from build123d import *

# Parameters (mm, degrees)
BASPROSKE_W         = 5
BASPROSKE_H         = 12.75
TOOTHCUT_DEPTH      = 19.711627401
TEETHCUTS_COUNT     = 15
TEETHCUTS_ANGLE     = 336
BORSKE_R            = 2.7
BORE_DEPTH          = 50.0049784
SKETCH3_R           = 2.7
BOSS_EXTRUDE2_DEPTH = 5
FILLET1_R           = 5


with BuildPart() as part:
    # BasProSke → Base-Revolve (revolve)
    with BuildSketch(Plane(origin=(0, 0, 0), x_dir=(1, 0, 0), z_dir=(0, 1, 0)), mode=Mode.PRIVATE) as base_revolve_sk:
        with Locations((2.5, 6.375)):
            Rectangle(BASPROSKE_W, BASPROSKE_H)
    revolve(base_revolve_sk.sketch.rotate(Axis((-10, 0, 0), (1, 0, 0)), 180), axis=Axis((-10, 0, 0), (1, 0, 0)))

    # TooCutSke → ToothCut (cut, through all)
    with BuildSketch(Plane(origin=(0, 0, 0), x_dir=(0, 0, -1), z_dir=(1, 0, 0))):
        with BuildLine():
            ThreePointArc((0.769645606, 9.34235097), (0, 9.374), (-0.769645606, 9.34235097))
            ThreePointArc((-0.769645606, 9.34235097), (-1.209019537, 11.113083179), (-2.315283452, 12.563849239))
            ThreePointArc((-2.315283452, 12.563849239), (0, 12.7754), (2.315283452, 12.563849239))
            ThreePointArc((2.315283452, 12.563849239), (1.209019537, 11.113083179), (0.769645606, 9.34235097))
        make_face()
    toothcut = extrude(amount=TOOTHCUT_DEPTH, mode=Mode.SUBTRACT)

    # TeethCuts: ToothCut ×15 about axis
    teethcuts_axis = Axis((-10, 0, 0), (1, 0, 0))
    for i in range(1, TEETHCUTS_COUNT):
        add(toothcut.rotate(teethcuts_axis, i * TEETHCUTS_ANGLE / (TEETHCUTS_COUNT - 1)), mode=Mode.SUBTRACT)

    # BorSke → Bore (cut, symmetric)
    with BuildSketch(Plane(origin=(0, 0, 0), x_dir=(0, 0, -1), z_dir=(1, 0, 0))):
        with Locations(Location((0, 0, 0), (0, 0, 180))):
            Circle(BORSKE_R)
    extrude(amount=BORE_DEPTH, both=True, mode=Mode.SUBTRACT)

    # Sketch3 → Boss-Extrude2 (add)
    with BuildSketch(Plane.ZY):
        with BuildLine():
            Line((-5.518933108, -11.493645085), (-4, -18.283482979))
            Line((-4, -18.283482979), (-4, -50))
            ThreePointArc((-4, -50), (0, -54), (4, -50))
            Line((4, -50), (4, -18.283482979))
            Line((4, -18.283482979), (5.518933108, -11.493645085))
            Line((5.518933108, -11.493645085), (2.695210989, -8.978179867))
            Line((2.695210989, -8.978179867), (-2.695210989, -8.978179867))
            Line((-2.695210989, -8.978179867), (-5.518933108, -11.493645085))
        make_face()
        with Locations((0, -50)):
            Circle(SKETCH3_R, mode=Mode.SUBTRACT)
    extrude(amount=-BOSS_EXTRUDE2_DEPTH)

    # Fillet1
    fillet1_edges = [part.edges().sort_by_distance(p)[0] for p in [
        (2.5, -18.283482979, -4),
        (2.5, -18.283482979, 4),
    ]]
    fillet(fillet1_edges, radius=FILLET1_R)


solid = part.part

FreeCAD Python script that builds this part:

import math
import FreeCAD as App
import Part
import Sketcher

V = App.Vector
Q = App.Units.Quantity


def edges_at(feature, points):
    """Names of the edges that pass closest to the given points."""
    edges = feature.Shape.Edges
    near = lambda p: min(range(len(edges)), key=lambda i: edges[i].distToShape(Part.Vertex(*p))[0])
    return sorted({f"Edge{near(p) + 1}" for p in points})

doc = App.newDocument("Part")
body = doc.addObject("PartDesign::Body", "Body")

# Sketch on XZ plane
sketch1 = doc.addObject("Sketcher::SketchObject", "Sketch")
body.addObject(sketch1)
sketch1.AttachmentSupport = (doc.XZ_Plane, [""])
sketch1.MapMode = "FlatFace"
sketch1.addGeometry([
    Part.LineSegment(V(0, -12.75, 0), V(0, 0, 0)),
    Part.LineSegment(V(0, 0, 0), V(5, 0, 0)),
    Part.LineSegment(V(5, 0, 0), V(5, -12.75, 0)),
    Part.LineSegment(V(5, -12.75, 0), V(0, -12.75, 0)),
], False)
sketch1.addConstraint([
    Sketcher.Constraint("Coincident", 0, 2, 1, 1),
    Sketcher.Constraint("Coincident", 1, 2, 2, 1),
    Sketcher.Constraint("Coincident", 2, 2, 3, 1),
    Sketcher.Constraint("Coincident", 3, 2, 0, 1),
    Sketcher.Constraint("Vertical", 0),
    Sketcher.Constraint("Horizontal", 1),
    Sketcher.Constraint("Vertical", 2),
    Sketcher.Constraint("Horizontal", 3),
    Sketcher.Constraint("Coincident", 0, 2, -1, 1),
    Sketcher.Constraint("DistanceX", 1, 1, 1, 2, Q("5 mm")),
    Sketcher.Constraint("DistanceY", 0, 1, 0, 2, Q("12.75 mm")),
])
revolution = doc.addObject("PartDesign::Revolution", "Revolution")
body.addObject(revolution)
revolution.Profile = sketch1
revolution.ReferenceAxis = (sketch1, ["H_Axis"])
revolution.Angle = 360

# Sketch on YZ plane
sketch2 = doc.addObject("Sketcher::SketchObject", "Sketch001")
body.addObject(sketch2)
sketch2.AttachmentSupport = (doc.YZ_Plane, [""])
sketch2.MapMode = "FlatFace"
sketch2.addGeometry([
    Part.ArcOfCircle(Part.Circle(V(0, 0, 0), V(0, 0, 1), 9.374), math.radians(-4.709531), math.radians(4.709531)),
    Part.ArcOfCircle(Part.Circle(V(9.166491, -5.266208, 0), V(0, 0, 1), 4.5), math.radians(40.977379), math.radians(87.760308)),
    Part.ArcOfCircle(Part.Circle(V(0, 0, 0), V(0, 0, 1), 12.7754), math.radians(-10.441402), math.radians(10.441402)),
    Part.ArcOfCircle(Part.Circle(V(9.166491, 5.266208, 0), V(0, 0, 1), 4.5), math.radians(-87.760308), math.radians(-40.977379)),
], False)
sketch2.addConstraint([
    Sketcher.Constraint("Coincident", 0, 1, 1, 2),
    Sketcher.Constraint("Coincident", 1, 1, 2, 1),
    Sketcher.Constraint("Coincident", 2, 2, 3, 2),
    Sketcher.Constraint("Coincident", 3, 1, 0, 2),
    Sketcher.Constraint("Coincident", 0, 3, -1, 1),
    Sketcher.Constraint("Coincident", 2, 3, -1, 1),
    Sketcher.Constraint("Equal", 1, 3),
    Sketcher.Constraint("Symmetric", 1, 3, 3, 3, -1),
    Sketcher.Constraint("Radius", 1, Q("4.5 mm")),
    Sketcher.Constraint("Radius", 0, Q("9.374 mm")),
    Sketcher.Constraint("Radius", 2, Q("12.7754 mm")),
    Sketcher.Constraint("DistanceX", 0, 1, 1, 1, Q("3.221498 mm")),
    Sketcher.Constraint("DistanceX", -1, 1, 1, 3, Q("9.166491 mm")),
])
pocket1 = doc.addObject("PartDesign::Pocket", "Pocket")
body.addObject(pocket1)
pocket1.Profile = sketch2
pocket1.Type = "ThroughAll"
pocket1.Reversed = True
doc.recompute()

polarpattern = doc.addObject("PartDesign::PolarPattern", "PolarPattern")
body.addObject(polarpattern)
polarpattern.Originals = [pocket1]
polarpattern.Axis = (doc.X_Axis, [""])
polarpattern.Angle = 360
polarpattern.Occurrences = 15
body.Tip = polarpattern

# Sketch on YZ plane
sketch3 = doc.addObject("Sketcher::SketchObject", "Sketch002")
body.addObject(sketch3)
sketch3.AttachmentSupport = (doc.YZ_Plane, [""])
sketch3.MapMode = "FlatFace"
sketch3.addGeometry(Part.Circle(V(0, 0, 0), V(0, 0, 1), 2.7), False)
sketch3.addConstraint([
    Sketcher.Constraint("Coincident", 0, 3, -1, 1),
    Sketcher.Constraint("Diameter", 0, Q("5.4 mm")),
])
pocket2 = doc.addObject("PartDesign::Pocket", "Pocket001")
body.addObject(pocket2)
pocket2.Profile = sketch3
pocket2.Length = 100.009957
pocket2.Midplane = True

# Sketch on YZ plane
sketch4 = doc.addObject("Sketcher::SketchObject", "Sketch003")
body.addObject(sketch4)
sketch4.AttachmentSupport = (doc.YZ_Plane, [""])
sketch4.MapMode = "FlatFace"
sketch4.addGeometry([
    Part.LineSegment(V(-11.493645, -5.518933, 0), V(-18.283483, -4, 0)),  # 0
    Part.LineSegment(V(-18.283483, -4, 0), V(-50, -4, 0)),  # 1
    Part.ArcOfCircle(Part.Circle(V(-50, 0, 0), V(0, 0, 1), 4), math.radians(90), math.radians(270)),  # 2
    Part.LineSegment(V(-50, 4, 0), V(-18.283483, 4, 0)),  # 3
    Part.LineSegment(V(-18.283483, 4, 0), V(-11.493645, 5.518933, 0)),  # 4
    Part.LineSegment(V(-11.493645, 5.518933, 0), V(-8.97818, 2.695211, 0)),  # 5
    Part.LineSegment(V(-8.97818, 2.695211, 0), V(-8.97818, -2.695211, 0)),  # 6
    Part.LineSegment(V(-8.97818, -2.695211, 0), V(-11.493645, -5.518933, 0)),  # 7
    Part.Circle(V(-50, 0, 0), V(0, 0, 1), 2.7),  # 8
], False)
sketch4.addConstraint([
    Sketcher.Constraint("Coincident", 0, 2, 1, 1),
    Sketcher.Constraint("Tangent", 1, 2, 2, 2),
    Sketcher.Constraint("Tangent", 2, 1, 3, 1),
    Sketcher.Constraint("Coincident", 3, 2, 4, 1),
    Sketcher.Constraint("Coincident", 4, 2, 5, 1),
    Sketcher.Constraint("Coincident", 5, 2, 6, 1),
    Sketcher.Constraint("Coincident", 6, 2, 7, 1),
    Sketcher.Constraint("Coincident", 7, 2, 0, 1),
    Sketcher.Constraint("Horizontal", 1),
    Sketcher.Constraint("Horizontal", 3),
    Sketcher.Constraint("Vertical", 6),
    Sketcher.Constraint("Coincident", 8, 3, 2, 3),
    Sketcher.Constraint("Symmetric", 0, 2, 3, 2, -1),
    Sketcher.Constraint("Symmetric", 4, 2, 7, 2, -1),
    Sketcher.Constraint("Equal", 5, 7),
    Sketcher.Constraint("Radius", 2, Q("4 mm")),
    Sketcher.Constraint("Diameter", 8, Q("5.4 mm")),
    Sketcher.Constraint("DistanceX", 2, 3, -1, 1, Q("50 mm")),
    Sketcher.Constraint("DistanceY", 6, 2, 6, 1, Q("5.390422 mm")),
    Sketcher.Constraint("Distance", 0, Q("6.957662 mm")),
    Sketcher.Constraint("DistanceX", 1, 2, 1, 1, Q("31.716517 mm")),
    Sketcher.Constraint("DistanceX", 5, 2, -1, 1, Q("8.97818 mm")),
    Sketcher.Constraint("Distance", 5, Q("3.781663 mm")),
])
pad1 = doc.addObject("PartDesign::Pad", "Pad")
body.addObject(pad1)
pad1.Profile = sketch4
pad1.Length = 5
doc.recompute()

fillet = doc.addObject("PartDesign::Fillet", "Fillet")
body.addObject(fillet)
fillet.Base = (pad1, edges_at(pad1, [(2.5, -18.283, -4), (2.5, -18.283, 4)]))
fillet.Radius = 5

doc.recompute()
